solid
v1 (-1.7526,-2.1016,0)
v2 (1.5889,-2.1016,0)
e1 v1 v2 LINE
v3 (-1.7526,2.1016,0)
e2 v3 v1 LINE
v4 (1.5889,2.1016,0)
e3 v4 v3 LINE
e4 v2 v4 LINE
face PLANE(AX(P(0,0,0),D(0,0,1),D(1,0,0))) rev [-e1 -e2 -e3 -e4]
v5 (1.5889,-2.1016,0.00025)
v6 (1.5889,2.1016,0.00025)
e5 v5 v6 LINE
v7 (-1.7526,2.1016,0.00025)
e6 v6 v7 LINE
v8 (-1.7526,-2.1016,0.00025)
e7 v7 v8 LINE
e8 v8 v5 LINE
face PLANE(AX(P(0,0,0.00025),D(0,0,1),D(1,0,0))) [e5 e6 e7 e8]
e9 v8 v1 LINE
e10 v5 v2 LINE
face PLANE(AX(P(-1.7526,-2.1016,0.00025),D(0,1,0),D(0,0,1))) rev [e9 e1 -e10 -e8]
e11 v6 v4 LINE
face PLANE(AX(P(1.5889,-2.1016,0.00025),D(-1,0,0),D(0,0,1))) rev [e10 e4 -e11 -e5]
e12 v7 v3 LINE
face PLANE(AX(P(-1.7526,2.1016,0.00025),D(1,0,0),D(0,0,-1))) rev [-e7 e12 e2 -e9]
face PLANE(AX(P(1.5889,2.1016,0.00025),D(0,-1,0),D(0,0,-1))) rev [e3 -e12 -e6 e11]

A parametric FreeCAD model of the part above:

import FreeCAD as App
import Part
import Sketcher
from FreeCAD import Vector


def add_polygon(sketch, points):
    """Adds a closed chain of lines whose ends are joined by coincident constraints."""
    first, n = sketch.GeometryCount, len(points)
    for a, b in zip(points, points[1:] + points[:1]):
        sketch.addGeometry(Part.LineSegment(App.Vector(*a, 0), App.Vector(*b, 0)), False)
    for i in range(n):
        sketch.addConstraint(Sketcher.Constraint("Coincident", first + i, 2, first + (i + 1) % n, 1))

doc = App.newDocument("Part")
body = doc.addObject("PartDesign::Body", "Body")

# Sketch on XY plane
sketch1 = body.newObject("Sketcher::SketchObject", "Sketch")
sketch1.AttachmentSupport = (doc.getObject("XY_Plane"), [""])
sketch1.MapMode = "FlatFace"
add_polygon(sketch1, [(-1.7526, 2.1016), (-1.7526, -2.1016), (1.5889, -2.1016), (1.5889, 2.1016)])  # lines 0-3
sketch1.addConstraint(Sketcher.Constraint("Vertical", 0))
sketch1.addConstraint(Sketcher.Constraint("Horizontal", 1))
sketch1.addConstraint(Sketcher.Constraint("Vertical", 2))
sketch1.addConstraint(Sketcher.Constraint("Horizontal", 3))
sketch1.addConstraint(Sketcher.Constraint("DistanceX", 1, 1, 1, 2, 3.3415))
sketch1.addConstraint(Sketcher.Constraint("DistanceY", 0, 2, 0, 1, 4.2032))
sketch1.addConstraint(Sketcher.Constraint("DistanceX", 0, 2, -1, 1, 1.7526))
sketch1.addConstraint(Sketcher.Constraint("DistanceY", 0, 2, -1, 1, 2.1016))
pad1 = body.newObject("PartDesign::Pad", "Pad")
pad1.Profile = sketch1
pad1.Length = 0.00025

doc.recompute()
